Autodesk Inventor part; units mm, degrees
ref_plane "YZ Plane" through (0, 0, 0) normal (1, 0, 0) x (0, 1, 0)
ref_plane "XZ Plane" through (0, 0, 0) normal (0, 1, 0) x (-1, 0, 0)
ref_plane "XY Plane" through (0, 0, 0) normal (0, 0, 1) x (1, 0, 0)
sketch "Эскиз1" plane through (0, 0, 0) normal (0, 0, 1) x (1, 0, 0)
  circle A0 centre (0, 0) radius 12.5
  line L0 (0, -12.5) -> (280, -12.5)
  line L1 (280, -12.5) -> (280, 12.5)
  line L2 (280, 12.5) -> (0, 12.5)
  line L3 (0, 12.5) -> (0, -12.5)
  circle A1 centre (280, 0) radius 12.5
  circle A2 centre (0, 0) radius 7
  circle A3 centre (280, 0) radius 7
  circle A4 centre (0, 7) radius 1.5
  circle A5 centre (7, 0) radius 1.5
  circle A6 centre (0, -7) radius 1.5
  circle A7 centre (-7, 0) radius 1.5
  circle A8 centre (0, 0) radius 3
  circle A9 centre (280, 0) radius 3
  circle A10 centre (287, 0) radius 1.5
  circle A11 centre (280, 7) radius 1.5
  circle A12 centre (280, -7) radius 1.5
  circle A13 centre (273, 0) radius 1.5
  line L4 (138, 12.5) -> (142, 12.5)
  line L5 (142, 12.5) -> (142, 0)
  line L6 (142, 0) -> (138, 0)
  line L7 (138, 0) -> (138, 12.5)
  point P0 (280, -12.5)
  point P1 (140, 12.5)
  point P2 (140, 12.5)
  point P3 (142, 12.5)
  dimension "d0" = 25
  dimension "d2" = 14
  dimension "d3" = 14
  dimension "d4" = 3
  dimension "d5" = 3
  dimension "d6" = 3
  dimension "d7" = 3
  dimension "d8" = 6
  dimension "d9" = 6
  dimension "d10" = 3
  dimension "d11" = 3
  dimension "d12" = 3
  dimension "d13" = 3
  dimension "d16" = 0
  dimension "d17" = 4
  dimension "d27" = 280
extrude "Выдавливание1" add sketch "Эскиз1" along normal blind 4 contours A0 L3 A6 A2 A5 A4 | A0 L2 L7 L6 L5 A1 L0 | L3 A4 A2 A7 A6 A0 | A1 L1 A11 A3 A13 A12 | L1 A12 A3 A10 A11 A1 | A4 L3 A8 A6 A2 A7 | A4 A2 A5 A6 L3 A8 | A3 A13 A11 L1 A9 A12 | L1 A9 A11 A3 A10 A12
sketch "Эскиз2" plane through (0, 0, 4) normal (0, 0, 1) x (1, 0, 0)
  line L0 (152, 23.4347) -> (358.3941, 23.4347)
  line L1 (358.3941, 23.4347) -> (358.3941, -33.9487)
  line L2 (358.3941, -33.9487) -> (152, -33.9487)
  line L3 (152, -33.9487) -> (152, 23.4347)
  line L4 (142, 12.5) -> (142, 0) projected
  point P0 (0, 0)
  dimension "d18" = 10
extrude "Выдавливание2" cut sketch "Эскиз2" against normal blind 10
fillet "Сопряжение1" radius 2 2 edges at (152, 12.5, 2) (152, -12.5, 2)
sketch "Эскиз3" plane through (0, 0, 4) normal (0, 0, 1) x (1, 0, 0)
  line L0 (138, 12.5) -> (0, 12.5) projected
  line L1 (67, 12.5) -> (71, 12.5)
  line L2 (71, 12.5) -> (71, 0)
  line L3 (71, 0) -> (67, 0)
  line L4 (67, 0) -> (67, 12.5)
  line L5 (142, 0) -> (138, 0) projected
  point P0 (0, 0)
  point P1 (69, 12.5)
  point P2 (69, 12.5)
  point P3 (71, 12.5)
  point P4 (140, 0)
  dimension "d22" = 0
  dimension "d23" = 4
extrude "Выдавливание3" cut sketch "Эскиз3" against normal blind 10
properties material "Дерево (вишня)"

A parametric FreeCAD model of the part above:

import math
import FreeCAD as App
import Part
import Sketcher
from FreeCAD import Vector
Q = App.Units.Quantity


def edges_at(feature, points):
    """Names of the edges that pass closest to the given points."""
    edges = feature.Shape.Edges
    near = lambda p: min(range(len(edges)), key=lambda i: edges[i].distToShape(Part.Vertex(*p))[0])
    return sorted({f"Edge{near(p) + 1}" for p in points})

doc = App.newDocument("Part")
body = doc.addObject("PartDesign::Body", "Body")

# Sketch on XY plane
sketch1 = body.newObject("Sketcher::SketchObject", "Sketch")
sketch1.AttachmentSupport = (doc.getObject("XY_Plane"), [""])
sketch1.MapMode = "FlatFace"
sketch1.addGeometry(Part.LineSegment(Vector(0, -12.5, 0), Vector(280, -12.5, 0)), False)
sketch1.addGeometry(Part.ArcOfCircle(Part.Circle(Vector(280, 0, 0), Vector(0, 0, 1), 12.5), math.radians(-90), math.radians(90)), False)
sketch1.addGeometry(Part.LineSegment(Vector(280, 12.5, 0), Vector(142, 12.5, 0)), False)
sketch1.addGeometry(Part.LineSegment(Vector(142, 12.5, 0), Vector(142, 0, 0)), False)
sketch1.addGeometry(Part.LineSegment(Vector(142, 0, 0), Vector(138, 0, 0)), False)
sketch1.addGeometry(Part.LineSegment(Vector(138, 0, 0), Vector(138, 12.5, 0)), False)
sketch1.addGeometry(Part.LineSegment(Vector(138, 12.5, 0), Vector(0, 12.5, 0)), False)
sketch1.addGeometry(Part.ArcOfCircle(Part.Circle(Vector(0, 0, 0), Vector(0, 0, 1), 12.5), math.radians(90), math.radians(270)), False)
sketch1.addGeometry(Part.Circle(Vector(0, -7, 0), Vector(0, 0, 1), 1.5), False)
sketch1.addGeometry(Part.Circle(Vector(7, 0, 0), Vector(0, 0, 1), 1.5), False)
sketch1.addGeometry(Part.Circle(Vector(0, 7, 0), Vector(0, 0, 1), 1.5), False)
sketch1.addGeometry(Part.Circle(Vector(-7, 0, 0), Vector(0, 0, 1), 1.5), False)
sketch1.addGeometry(Part.Circle(Vector(0, 0, 0), Vector(0, 0, 1), 3), False)
sketch1.addGeometry(Part.Circle(Vector(280, 7, 0), Vector(0, 0, 1), 1.5), False)
sketch1.addGeometry(Part.Circle(Vector(273, 0, 0), Vector(0, 0, 1), 1.5), False)
sketch1.addGeometry(Part.Circle(Vector(280, -7, 0), Vector(0, 0, 1), 1.5), False)
sketch1.addGeometry(Part.Circle(Vector(287, 0, 0), Vector(0, 0, 1), 1.5), False)
sketch1.addGeometry(Part.Circle(Vector(280, 0, 0), Vector(0, 0, 1), 3), False)
sketch1.addConstraint(Sketcher.Constraint("Tangent", 0, 2, 1, 1))
sketch1.addConstraint(Sketcher.Constraint("Tangent", 1, 2, 2, 1))
sketch1.addConstraint(Sketcher.Constraint("Coincident", 2, 2, 3, 1))
sketch1.addConstraint(Sketcher.Constraint("Coincident", 3, 2, 4, 1))
sketch1.addConstraint(Sketcher.Constraint("Coincident", 4, 2, 5, 1))
sketch1.addConstraint(Sketcher.Constraint("Coincident", 5, 2, 6, 1))
sketch1.addConstraint(Sketcher.Constraint("Tangent", 6, 2, 7, 1))
sketch1.addConstraint(Sketcher.Constraint("Tangent", 7, 2, 0, 1))
sketch1.addConstraint(Sketcher.Constraint("Horizontal", 0))
sketch1.addConstraint(Sketcher.Constraint("Horizontal", 2))
sketch1.addConstraint(Sketcher.Constraint("Vertical", 3))
sketch1.addConstraint(Sketcher.Constraint("Horizontal", 4))
sketch1.addConstraint(Sketcher.Constraint("Vertical", 5))
sketch1.addConstraint(Sketcher.Constraint("Horizontal", 6))
sketch1.addConstraint(Sketcher.Constraint("Coincident", 7, 3, -1, 1))
sketch1.addConstraint(Sketcher.Constraint("Coincident", 12, 3, -1, 1))
sketch1.addConstraint(Sketcher.Constraint("Coincident", 17, 3, 1, 3))
sketch1.addConstraint(Sketcher.Constraint("Equal", 1, 7))
sketch1.addConstraint(Sketcher.Constraint("Equal", 8, 9))
sketch1.addConstraint(Sketcher.Constraint("Equal", 9, 10))
sketch1.addConstraint(Sketcher.Constraint("Equal", 10, 11))
sketch1.addConstraint(Sketcher.Constraint("Equal", 11, 13))
sketch1.addConstraint(Sketcher.Constraint("Equal", 13, 14))
sketch1.addConstraint(Sketcher.Constraint("Equal", 14, 15))
sketch1.addConstraint(Sketcher.Constraint("Equal", 15, 16))
sketch1.addConstraint(Sketcher.Constraint("Equal", 12, 17))
sketch1.addConstraint(Sketcher.Constraint("Symmetric", 8, 3, 10, 3, -1, 1))
sketch1.addConstraint(Sketcher.Constraint("Symmetric", 9, 3, 11, 3, -1, 1))
sketch1.addConstraint(Sketcher.Constraint("Symmetric", 13, 3, 15, 3, -1))
sketch1.addConstraint(Sketcher.Constraint("PointOnObject", 8, 3, -2))
sketch1.addConstraint(Sketcher.Constraint("PointOnObject", 9, 3, -1))
sketch1.addConstraint(Sketcher.Constraint("PointOnObject", 14, 3, -1))
sketch1.addConstraint(Sketcher.Constraint("PointOnObject", 16, 3, -1))
sketch1.addConstraint(Sketcher.Constraint("PointOnObject", 3, 2, -1))
sketch1.addConstraint(Sketcher.Constraint("Horizontal", 10, 3, 13, 3))
sketch1.addConstraint(Sketcher.Constraint("Vertical", 1, 3, 13, 3))
sketch1.addConstraint(Sketcher.Constraint("Equal", 2, 6))
sketch1.addConstraint(Sketcher.Constraint("Diameter", 8, Q("3 mm")))
sketch1.addConstraint(Sketcher.Constraint("Diameter", 12, Q("6 mm")))
sketch1.addConstraint(Sketcher.Constraint("Radius", 1, Q("12.5 mm")))
sketch1.addConstraint(Sketcher.Constraint("DistanceX", 0, 1, 0, 2, Q("280 mm")))
sketch1.addConstraint(Sketcher.Constraint("DistanceX", 4, 2, 4, 1, Q("4 mm")))
sketch1.addConstraint(Sketcher.Constraint("DistanceY", 8, 3, 10, 3, Q("14 mm")))
sketch1.addConstraint(Sketcher.Constraint("DistanceX", 11, 3, 9, 3, Q("14 mm")))
sketch1.addConstraint(Sketcher.Constraint("DistanceX", 14, 3, 16, 3, Q("14 mm")))
sketch1.addConstraint(Sketcher.Constraint("DistanceX", 9, 3, 16, 3, Q("280 mm")))
pad1 = body.newObject("PartDesign::Pad", "Pad")
pad1.Profile = sketch1
pad1.Length = 4

# Sketch on XY plane
sketch2 = body.newObject("Sketcher::SketchObject", "Sketch001")
sketch2.AttachmentSupport = (doc.getObject("XY_Plane"), [""])
sketch2.MapMode = "FlatFace"
sketch2.AttachmentOffset = App.Placement(Vector(0, 0, 4), App.Rotation())
sketch2.addGeometry(Part.LineSegment(Vector(358, 23, 0), Vector(152, 23, 0)), False)
sketch2.addGeometry(Part.LineSegment(Vector(152, 23, 0), Vector(152, -34, 0)), False)
sketch2.addGeometry(Part.LineSegment(Vector(152, -34, 0), Vector(358, -34, 0)), False)
sketch2.addGeometry(Part.LineSegment(Vector(358, -34, 0), Vector(358, 23, 0)), False)
sketch2.addConstraint(Sketcher.Constraint("Coincident", 0, 2, 1, 1))
sketch2.addConstraint(Sketcher.Constraint("Coincident", 1, 2, 2, 1))
sketch2.addConstraint(Sketcher.Constraint("Coincident", 2, 2, 3, 1))
sketch2.addConstraint(Sketcher.Constraint("Coincident", 3, 2, 0, 1))
sketch2.addConstraint(Sketcher.Constraint("Horizontal", 0))
sketch2.addConstraint(Sketcher.Constraint("Vertical", 1))
sketch2.addConstraint(Sketcher.Constraint("Horizontal", 2))
sketch2.addConstraint(Sketcher.Constraint("Vertical", 3))
sketch2.addConstraint(Sketcher.Constraint("DistanceX", -1, 1, 0, 2, Q("152 mm")))
sketch2.addConstraint(Sketcher.Constraint("DistanceX", 0, 2, 0, 1, Q("206.394 mm")))
sketch2.addConstraint(Sketcher.Constraint("DistanceY", 1, 2, 1, 1, Q("57.3834 mm")))
sketch2.addConstraint(Sketcher.Constraint("DistanceY", -1, 1, 0, 2, Q("23.4347 mm")))
pocket1 = body.newObject("PartDesign::Pocket", "Pocket")
pocket1.Profile = sketch2
pocket1.Length = 10
doc.recompute()

fillet = body.newObject("PartDesign::Fillet", "Fillet")
fillet.Base = (pocket1, edges_at(pocket1, [(152, 12.5, 2), (152, -12.5, 2)]))
fillet.Radius = 2

# Sketch on XY plane
sketch3 = body.newObject("Sketcher::SketchObject", "Sketch002")
sketch3.AttachmentSupport = (doc.getObject("XY_Plane"), [""])
sketch3.MapMode = "FlatFace"
sketch3.AttachmentOffset = App.Placement(Vector(0, 0, 4), App.Rotation())
sketch3.addGeometry(Part.LineSegment(Vector(71, 0, 0), Vector(71, 12.5, 0)), False)
sketch3.addGeometry(Part.LineSegment(Vector(71, 12.5, 0), Vector(67, 12.5, 0)), False)
sketch3.addGeometry(Part.LineSegment(Vector(67, 12.5, 0), Vector(67, 0, 0)), False)
sketch3.addGeometry(Part.LineSegment(Vector(67, 0, 0), Vector(71, 0, 0)), False)
sketch3.addConstraint(Sketcher.Constraint("Coincident", 0, 2, 1, 1))
sketch3.addConstraint(Sketcher.Constraint("Coincident", 1, 2, 2, 1))
sketch3.addConstraint(Sketcher.Constraint("Coincident", 2, 2, 3, 1))
sketch3.addConstraint(Sketcher.Constraint("Coincident", 3, 2, 0, 1))
sketch3.addConstraint(Sketcher.Constraint("Vertical", 0))
sketch3.addConstraint(Sketcher.Constraint("Horizontal", 1))
sketch3.addConstraint(Sketcher.Constraint("Vertical", 2))
sketch3.addConstraint(Sketcher.Constraint("Horizontal", 3))
sketch3.addConstraint(Sketcher.Constraint("PointOnObject", 2, 2, -1))
sketch3.addConstraint(Sketcher.Constraint("DistanceX", 1, 2, 1, 1, Q("4 mm")))
sketch3.addConstraint(Sketcher.Constraint("DistanceY", 0, 1, 0, 2, Q("12.5 mm")))
sketch3.addConstraint(Sketcher.Constraint("DistanceX", -1, 1, 0, 2, Q("71 mm")))
pocket2 = body.newObject("PartDesign::Pocket", "Pocket001")
pocket2.Profile = sketch3
pocket2.Length = 10

doc.recompute()
